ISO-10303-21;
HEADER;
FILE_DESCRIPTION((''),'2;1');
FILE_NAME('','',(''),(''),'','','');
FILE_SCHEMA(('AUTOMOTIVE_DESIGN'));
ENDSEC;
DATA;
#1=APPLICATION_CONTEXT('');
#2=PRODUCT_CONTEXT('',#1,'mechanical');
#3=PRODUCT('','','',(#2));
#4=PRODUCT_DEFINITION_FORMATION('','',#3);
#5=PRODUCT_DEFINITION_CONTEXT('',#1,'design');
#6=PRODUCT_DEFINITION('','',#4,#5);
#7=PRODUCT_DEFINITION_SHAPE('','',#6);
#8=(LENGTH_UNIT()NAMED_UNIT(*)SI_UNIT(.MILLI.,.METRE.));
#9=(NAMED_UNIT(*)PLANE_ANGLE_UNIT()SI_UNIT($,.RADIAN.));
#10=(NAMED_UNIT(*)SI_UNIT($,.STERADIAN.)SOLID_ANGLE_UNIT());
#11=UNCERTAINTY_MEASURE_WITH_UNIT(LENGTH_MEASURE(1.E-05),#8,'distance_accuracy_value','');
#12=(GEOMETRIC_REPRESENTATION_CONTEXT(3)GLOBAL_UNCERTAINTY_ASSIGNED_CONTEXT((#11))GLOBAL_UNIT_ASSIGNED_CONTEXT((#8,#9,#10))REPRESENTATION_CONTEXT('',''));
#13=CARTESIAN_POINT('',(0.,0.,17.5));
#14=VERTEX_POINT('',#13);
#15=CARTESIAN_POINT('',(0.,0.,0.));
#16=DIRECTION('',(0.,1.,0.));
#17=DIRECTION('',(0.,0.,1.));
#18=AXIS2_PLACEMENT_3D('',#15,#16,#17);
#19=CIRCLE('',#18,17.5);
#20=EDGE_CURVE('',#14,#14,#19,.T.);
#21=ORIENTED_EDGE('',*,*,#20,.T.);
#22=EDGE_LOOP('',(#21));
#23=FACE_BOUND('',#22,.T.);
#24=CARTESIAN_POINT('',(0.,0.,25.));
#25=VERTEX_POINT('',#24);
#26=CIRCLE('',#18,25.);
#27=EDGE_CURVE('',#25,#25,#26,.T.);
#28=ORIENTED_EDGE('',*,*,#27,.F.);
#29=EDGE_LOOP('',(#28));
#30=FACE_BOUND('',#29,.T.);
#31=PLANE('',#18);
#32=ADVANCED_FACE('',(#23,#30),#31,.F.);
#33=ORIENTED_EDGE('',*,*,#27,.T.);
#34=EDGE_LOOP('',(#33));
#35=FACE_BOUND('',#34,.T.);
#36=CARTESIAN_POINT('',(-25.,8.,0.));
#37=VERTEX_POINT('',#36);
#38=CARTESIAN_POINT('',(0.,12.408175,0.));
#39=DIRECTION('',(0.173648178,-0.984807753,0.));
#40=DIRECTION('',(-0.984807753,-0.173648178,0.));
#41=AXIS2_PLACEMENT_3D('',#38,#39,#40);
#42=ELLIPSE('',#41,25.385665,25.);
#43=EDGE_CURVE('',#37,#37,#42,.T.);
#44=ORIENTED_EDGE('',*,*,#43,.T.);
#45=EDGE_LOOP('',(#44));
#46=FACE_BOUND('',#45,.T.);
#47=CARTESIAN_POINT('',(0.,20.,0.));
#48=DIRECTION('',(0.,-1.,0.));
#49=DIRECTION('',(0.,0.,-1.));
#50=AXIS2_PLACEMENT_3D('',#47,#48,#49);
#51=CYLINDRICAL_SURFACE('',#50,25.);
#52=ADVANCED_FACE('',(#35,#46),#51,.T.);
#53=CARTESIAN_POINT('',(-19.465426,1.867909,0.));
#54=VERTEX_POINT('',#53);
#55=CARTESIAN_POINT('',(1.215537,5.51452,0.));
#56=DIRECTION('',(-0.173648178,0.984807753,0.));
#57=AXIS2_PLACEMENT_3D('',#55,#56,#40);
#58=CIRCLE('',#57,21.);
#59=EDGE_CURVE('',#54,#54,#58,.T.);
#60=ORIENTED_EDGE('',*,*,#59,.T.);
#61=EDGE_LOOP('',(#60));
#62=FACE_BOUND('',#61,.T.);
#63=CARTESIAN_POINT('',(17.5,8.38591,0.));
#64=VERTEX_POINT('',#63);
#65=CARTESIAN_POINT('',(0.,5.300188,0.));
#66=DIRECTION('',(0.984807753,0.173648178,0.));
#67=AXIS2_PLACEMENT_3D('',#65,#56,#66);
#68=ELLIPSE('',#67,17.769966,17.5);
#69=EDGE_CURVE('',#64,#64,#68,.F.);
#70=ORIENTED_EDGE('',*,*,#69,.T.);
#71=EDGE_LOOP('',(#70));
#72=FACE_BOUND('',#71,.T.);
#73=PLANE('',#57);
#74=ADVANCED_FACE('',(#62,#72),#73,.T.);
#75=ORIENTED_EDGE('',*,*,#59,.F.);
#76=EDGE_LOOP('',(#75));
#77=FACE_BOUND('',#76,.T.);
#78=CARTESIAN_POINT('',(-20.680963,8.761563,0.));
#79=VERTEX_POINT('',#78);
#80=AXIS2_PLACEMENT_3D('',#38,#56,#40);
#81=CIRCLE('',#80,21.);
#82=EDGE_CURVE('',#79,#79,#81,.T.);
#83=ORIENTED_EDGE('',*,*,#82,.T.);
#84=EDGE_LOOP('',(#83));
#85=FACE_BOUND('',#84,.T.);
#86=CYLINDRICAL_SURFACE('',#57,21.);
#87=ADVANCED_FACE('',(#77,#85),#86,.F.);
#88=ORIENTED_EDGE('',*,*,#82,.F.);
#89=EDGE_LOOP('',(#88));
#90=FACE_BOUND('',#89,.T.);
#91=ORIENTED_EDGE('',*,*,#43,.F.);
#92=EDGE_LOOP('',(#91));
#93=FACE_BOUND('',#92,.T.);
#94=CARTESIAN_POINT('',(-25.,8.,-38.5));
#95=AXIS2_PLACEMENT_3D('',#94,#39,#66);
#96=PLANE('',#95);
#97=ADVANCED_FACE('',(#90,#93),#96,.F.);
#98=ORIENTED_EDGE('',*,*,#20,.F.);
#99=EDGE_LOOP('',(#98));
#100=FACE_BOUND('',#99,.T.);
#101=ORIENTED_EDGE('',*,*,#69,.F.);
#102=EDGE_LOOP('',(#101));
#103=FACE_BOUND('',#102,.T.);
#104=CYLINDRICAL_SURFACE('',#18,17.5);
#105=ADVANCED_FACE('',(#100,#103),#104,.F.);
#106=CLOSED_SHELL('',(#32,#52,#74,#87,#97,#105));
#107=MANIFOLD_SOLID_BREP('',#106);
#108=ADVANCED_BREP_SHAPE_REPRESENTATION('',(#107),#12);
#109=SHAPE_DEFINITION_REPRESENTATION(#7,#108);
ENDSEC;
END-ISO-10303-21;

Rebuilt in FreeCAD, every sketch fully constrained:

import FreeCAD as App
import Part
import Sketcher

V = App.Vector
Q = App.Units.Quantity

doc = App.newDocument("Part")
body = doc.addObject("PartDesign::Body", "Body")

# Sketch on XZ plane
sketch1 = doc.addObject("Sketcher::SketchObject", "Sketch")
body.addObject(sketch1)
sketch1.AttachmentSupport = (doc.XZ_Plane, [""])
sketch1.MapMode = "FlatFace"
sketch1.addGeometry(Part.Circle(V(0, 0, 0), V(0, 0, 1), 25), False)
sketch1.addConstraint([
    Sketcher.Constraint("Coincident", 0, 3, -1, 1),
    Sketcher.Constraint("Diameter", 0, 50.0),
])
pad1 = doc.addObject("PartDesign::Pad", "Pad")
body.addObject(pad1)
pad1.Profile = sketch1
pad1.Length = 20
pad1.Reversed = True

# Sketch on XZ plane
sketch2 = doc.addObject("Sketcher::SketchObject", "Sketch001")
body.addObject(sketch2)
sketch2.AttachmentSupport = (doc.XZ_Plane, [""])
sketch2.MapMode = "FlatFace"
sketch2.AttachmentOffset = App.Placement(V(0, 0, -20), App.Rotation())
sketch2.addGeometry(Part.Circle(V(0, 0, 0), V(0, 0, 1), 18), False)
sketch2.addConstraint([
    Sketcher.Constraint("Coincident", 0, 3, -1, 1),
    Sketcher.Constraint("Diameter", 0, 35.0),
])
pocket1 = doc.addObject("PartDesign::Pocket", "Pocket")
body.addObject(pocket1)
pocket1.Profile = sketch2
pocket1.Length = 20
pocket1.Reversed = True

# Sketch on XY plane
sketch3 = doc.addObject("Sketcher::SketchObject", "Sketch002")
body.addObject(sketch3)
sketch3.AttachmentSupport = (doc.XY_Plane, [""])
sketch3.MapMode = "FlatFace"
sketch3.addGeometry([
    Part.LineSegment(V(-25, 8, 0), V(27.395296, 17.238704, 0)),
    Part.LineSegment(V(27.395296, 17.238704, 0), V(27.258418, 39.934275, 0)),
    Part.LineSegment(V(27.258418, 39.934275, 0), V(-34.82845, 34.25639, 0)),
    Part.LineSegment(V(-34.82845, 34.25639, 0), V(-25, 8, 0)),
], False)
sketch3.addConstraint([
    Sketcher.Constraint("Coincident", 0, 2, 1, 1),
    Sketcher.Constraint("Coincident", 1, 2, 2, 1),
    Sketcher.Constraint("Coincident", 2, 2, 3, 1),
    Sketcher.Constraint("Coincident", 3, 2, 0, 1),
    Sketcher.Constraint("Angle", 0, Q("10 deg")),
    Sketcher.Constraint("DistanceX", 3, 2, -1, 1, 25.0),
    Sketcher.Constraint("DistanceY", -1, 1, 3, 2, 8.0),
    Sketcher.Constraint("Distance", 2, 62.345951),
    Sketcher.Constraint("Distance", 3, 28.035628),
    Sketcher.Constraint("DistanceX", -1, 1, 1, 2, 27.258418),
    Sketcher.Constraint("DistanceX", 2, 2, -1, 1, 34.82845),
    Sketcher.Constraint("DistanceY", 0, 2, 1, 2, 22.695571),
])
pocket2 = doc.addObject("PartDesign::Pocket", "Pocket001")
body.addObject(pocket2)
pocket2.Profile = sketch3
pocket2.Length = 77
pocket2.Midplane = True

# Sketch on an angled plane
sketch4 = doc.addObject("Sketcher::SketchObject", "Sketch003")
body.addObject(sketch4)
sketch4.Placement = App.Placement(V(-2.121923, 12.034022, 0), App.Rotation(V(0.984807753, 0.173648178, 0), V(0, 0, -1), V(-0.173648178, 0.984807753, 0), "ZXY"))
sketch4.addGeometry(Part.Circle(V(2, 0, 0), V(0, 0, 1), 21), False)
sketch4.addConstraint([
    Sketcher.Constraint("PointOnObject", 0, 3, -1),
    Sketcher.Constraint("Diameter", 0, 42.0),
    Sketcher.Constraint("DistanceX", -1, 1, 0, 3, 2.154657),
])
pocket3 = doc.addObject("PartDesign::Pocket", "Pocket002")
body.addObject(pocket3)
pocket3.Profile = sketch4
pocket3.Length = 7

doc.recompute()
